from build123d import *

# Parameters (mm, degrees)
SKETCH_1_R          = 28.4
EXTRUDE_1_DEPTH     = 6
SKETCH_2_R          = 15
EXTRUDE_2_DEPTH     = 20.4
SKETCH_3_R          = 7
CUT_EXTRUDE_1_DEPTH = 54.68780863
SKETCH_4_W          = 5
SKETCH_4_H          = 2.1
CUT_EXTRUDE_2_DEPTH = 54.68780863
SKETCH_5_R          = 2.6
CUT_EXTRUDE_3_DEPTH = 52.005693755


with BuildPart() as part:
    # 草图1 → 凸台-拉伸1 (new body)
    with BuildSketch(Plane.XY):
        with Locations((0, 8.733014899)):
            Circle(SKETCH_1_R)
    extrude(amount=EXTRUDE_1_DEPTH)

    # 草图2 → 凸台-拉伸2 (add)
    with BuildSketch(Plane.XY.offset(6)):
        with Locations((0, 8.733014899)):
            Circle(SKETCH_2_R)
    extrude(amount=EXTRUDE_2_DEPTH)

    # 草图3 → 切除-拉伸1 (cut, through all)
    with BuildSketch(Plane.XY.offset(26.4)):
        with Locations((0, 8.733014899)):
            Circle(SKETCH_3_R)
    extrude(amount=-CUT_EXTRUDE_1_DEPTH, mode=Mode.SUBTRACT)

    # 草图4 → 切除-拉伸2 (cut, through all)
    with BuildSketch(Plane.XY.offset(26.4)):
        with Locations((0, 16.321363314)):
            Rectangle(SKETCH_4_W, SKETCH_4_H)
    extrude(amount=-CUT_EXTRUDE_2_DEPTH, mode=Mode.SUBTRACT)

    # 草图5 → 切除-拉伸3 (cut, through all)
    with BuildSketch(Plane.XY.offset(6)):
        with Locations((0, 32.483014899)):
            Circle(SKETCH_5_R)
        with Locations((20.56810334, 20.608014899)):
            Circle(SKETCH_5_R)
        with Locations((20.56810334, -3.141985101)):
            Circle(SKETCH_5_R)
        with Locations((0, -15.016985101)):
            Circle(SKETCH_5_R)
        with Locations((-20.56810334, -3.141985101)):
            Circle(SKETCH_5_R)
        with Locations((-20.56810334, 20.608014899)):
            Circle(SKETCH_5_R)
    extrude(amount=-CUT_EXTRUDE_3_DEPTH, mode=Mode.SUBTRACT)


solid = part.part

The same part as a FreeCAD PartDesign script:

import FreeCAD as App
import Part
import Sketcher
from FreeCAD import Vector


def add_polygon(sketch, points):
    """Adds a closed chain of lines whose ends are joined by coincident constraints."""
    first, n = sketch.GeometryCount, len(points)
    for a, b in zip(points, points[1:] + points[:1]):
        sketch.addGeometry(Part.LineSegment(App.Vector(*a, 0), App.Vector(*b, 0)), False)
    for i in range(n):
        sketch.addConstraint(Sketcher.Constraint("Coincident", first + i, 2, first + (i + 1) % n, 1))

doc = App.newDocument("Part")
body = doc.addObject("PartDesign::Body", "Body")

# Sketch on XY plane
sketch1 = body.newObject("Sketcher::SketchObject", "Sketch")
sketch1.AttachmentSupport = (doc.getObject("XY_Plane"), [""])
sketch1.MapMode = "FlatFace"
sketch1.addGeometry(Part.Circle(Vector(0, 9, 0), Vector(0, 0, 1), 28), False)
sketch1.addConstraint([
    Sketcher.Constraint("PointOnObject", 0, 3, -2),
    Sketcher.Constraint("Diameter", 0, 56.8),
    Sketcher.Constraint("DistanceY", -1, 1, 0, 3, 8.733015),
])
pad1 = body.newObject("PartDesign::Pad", "Pad")
pad1.Profile = sketch1
pad1.Length = 6

# Sketch on XY plane
sketch2 = body.newObject("Sketcher::SketchObject", "Sketch001")
sketch2.AttachmentSupport = (doc.getObject("XY_Plane"), [""])
sketch2.MapMode = "FlatFace"
sketch2.AttachmentOffset = App.Placement(Vector(0, 0, 6), App.Rotation())
sketch2.addGeometry(Part.Circle(Vector(0, 9, 0), Vector(0, 0, 1), 15), False)
sketch2.addConstraint([
    Sketcher.Constraint("PointOnObject", 0, 3, -2),
    Sketcher.Constraint("Diameter", 0, 30.0),
    Sketcher.Constraint("DistanceY", -1, 1, 0, 3, 8.733015),
])
pad2 = body.newObject("PartDesign::Pad", "Pad001")
pad2.Profile = sketch2
pad2.Length = 20.4

# Sketch on XY plane
sketch3 = body.newObject("Sketcher::SketchObject", "Sketch002")
sketch3.AttachmentSupport = (doc.getObject("XY_Plane"), [""])
sketch3.MapMode = "FlatFace"
sketch3.AttachmentOffset = App.Placement(Vector(0, 0, 26.4), App.Rotation())
sketch3.addGeometry(Part.Circle(Vector(0, 9, 0), Vector(0, 0, 1), 7), False)
sketch3.addConstraint([
    Sketcher.Constraint("PointOnObject", 0, 3, -2),
    Sketcher.Constraint("Diameter", 0, 14.0),
    Sketcher.Constraint("DistanceY", -1, 1, 0, 3, 8.733015),
])
pocket1 = body.newObject("PartDesign::Pocket", "Pocket")
pocket1.Profile = sketch3
pocket1.Type = "ThroughAll"

# Sketch on XY plane
sketch4 = body.newObject("Sketcher::SketchObject", "Sketch003")
sketch4.AttachmentSupport = (doc.getObject("XY_Plane"), [""])
sketch4.MapMode = "FlatFace"
sketch4.AttachmentOffset = App.Placement(Vector(0, 0, 26.4), App.Rotation())
add_polygon(sketch4, [(-2.5, 17.4), (-2.5, 15.3), (2.5, 15.3), (2.5, 17.4)])  # lines 0-3
sketch4.addConstraint([
    Sketcher.Constraint("Vertical", 0),
    Sketcher.Constraint("Horizontal", 1),
    Sketcher.Constraint("Vertical", 2),
    Sketcher.Constraint("Horizontal", 3),
    Sketcher.Constraint("DistanceX", 1, 1, 1, 2, 5.0),
    Sketcher.Constraint("DistanceY", 0, 2, 0, 1, 2.1),
    Sketcher.Constraint("DistanceX", 0, 2, -1, 1, 2.5),
    Sketcher.Constraint("DistanceY", -1, 1, 0, 2, 15.271363),
])
pocket2 = body.newObject("PartDesign::Pocket", "Pocket001")
pocket2.Profile = sketch4
pocket2.Type = "ThroughAll"

# Sketch on XY plane
sketch5 = body.newObject("Sketcher::SketchObject", "Sketch004")
sketch5.AttachmentSupport = (doc.getObject("XY_Plane"), [""])
sketch5.MapMode = "FlatFace"
sketch5.AttachmentOffset = App.Placement(Vector(0, 0, 6), App.Rotation())
sketch5.addGeometry([
    Part.Circle(Vector(0, 32.5, 0), Vector(0, 0, 1), 2.6),  # 0
    Part.Circle(Vector(20.6, 20.6, 0), Vector(0, 0, 1), 2.6),  # 1
    Part.Circle(Vector(20.6, -3.1, 0), Vector(0, 0, 1), 2.6),  # 2
    Part.Circle(Vector(0, -15, 0), Vector(0, 0, 1), 2.6),  # 3
    Part.Circle(Vector(-20.6, -3.1, 0), Vector(0, 0, 1), 2.6),  # 4
    Part.Circle(Vector(-20.6, 20.6, 0), Vector(0, 0, 1), 2.6),  # 5
], False)
sketch5.addConstraint([
    Sketcher.Constraint("Equal", 0, 1),
    Sketcher.Constraint("Equal", 1, 2),
    Sketcher.Constraint("Equal", 2, 3),
    Sketcher.Constraint("Equal", 3, 4),
    Sketcher.Constraint("Equal", 4, 5),
    Sketcher.Constraint("Symmetric", 2, 3, 4, 3, -2),
    Sketcher.Constraint("Symmetric", 1, 3, 5, 3, -2),
    Sketcher.Constraint("PointOnObject", 0, 3, -2),
    Sketcher.Constraint("PointOnObject", 3, 3, -2),
    Sketcher.Constraint("Vertical", 1, 3, 2, 3),
    Sketcher.Constraint("Diameter", 0, 5.2),
    Sketcher.Constraint("DistanceY", 3, 3, 0, 3, 47.5),
    Sketcher.Constraint("DistanceY", 2, 3, 1, 3, 23.75),
    Sketcher.Constraint("DistanceY", 1, 3, 0, 3, 11.875),
    Sketcher.Constraint("DistanceY", -1, 1, 0, 3, 32.483015),
    Sketcher.Constraint("DistanceX", -1, 1, 1, 3, 20.568103),
])
pocket3 = body.newObject("PartDesign::Pocket", "Pocket002")
pocket3.Profile = sketch5
pocket3.Type = "ThroughAll"

doc.recompute()
